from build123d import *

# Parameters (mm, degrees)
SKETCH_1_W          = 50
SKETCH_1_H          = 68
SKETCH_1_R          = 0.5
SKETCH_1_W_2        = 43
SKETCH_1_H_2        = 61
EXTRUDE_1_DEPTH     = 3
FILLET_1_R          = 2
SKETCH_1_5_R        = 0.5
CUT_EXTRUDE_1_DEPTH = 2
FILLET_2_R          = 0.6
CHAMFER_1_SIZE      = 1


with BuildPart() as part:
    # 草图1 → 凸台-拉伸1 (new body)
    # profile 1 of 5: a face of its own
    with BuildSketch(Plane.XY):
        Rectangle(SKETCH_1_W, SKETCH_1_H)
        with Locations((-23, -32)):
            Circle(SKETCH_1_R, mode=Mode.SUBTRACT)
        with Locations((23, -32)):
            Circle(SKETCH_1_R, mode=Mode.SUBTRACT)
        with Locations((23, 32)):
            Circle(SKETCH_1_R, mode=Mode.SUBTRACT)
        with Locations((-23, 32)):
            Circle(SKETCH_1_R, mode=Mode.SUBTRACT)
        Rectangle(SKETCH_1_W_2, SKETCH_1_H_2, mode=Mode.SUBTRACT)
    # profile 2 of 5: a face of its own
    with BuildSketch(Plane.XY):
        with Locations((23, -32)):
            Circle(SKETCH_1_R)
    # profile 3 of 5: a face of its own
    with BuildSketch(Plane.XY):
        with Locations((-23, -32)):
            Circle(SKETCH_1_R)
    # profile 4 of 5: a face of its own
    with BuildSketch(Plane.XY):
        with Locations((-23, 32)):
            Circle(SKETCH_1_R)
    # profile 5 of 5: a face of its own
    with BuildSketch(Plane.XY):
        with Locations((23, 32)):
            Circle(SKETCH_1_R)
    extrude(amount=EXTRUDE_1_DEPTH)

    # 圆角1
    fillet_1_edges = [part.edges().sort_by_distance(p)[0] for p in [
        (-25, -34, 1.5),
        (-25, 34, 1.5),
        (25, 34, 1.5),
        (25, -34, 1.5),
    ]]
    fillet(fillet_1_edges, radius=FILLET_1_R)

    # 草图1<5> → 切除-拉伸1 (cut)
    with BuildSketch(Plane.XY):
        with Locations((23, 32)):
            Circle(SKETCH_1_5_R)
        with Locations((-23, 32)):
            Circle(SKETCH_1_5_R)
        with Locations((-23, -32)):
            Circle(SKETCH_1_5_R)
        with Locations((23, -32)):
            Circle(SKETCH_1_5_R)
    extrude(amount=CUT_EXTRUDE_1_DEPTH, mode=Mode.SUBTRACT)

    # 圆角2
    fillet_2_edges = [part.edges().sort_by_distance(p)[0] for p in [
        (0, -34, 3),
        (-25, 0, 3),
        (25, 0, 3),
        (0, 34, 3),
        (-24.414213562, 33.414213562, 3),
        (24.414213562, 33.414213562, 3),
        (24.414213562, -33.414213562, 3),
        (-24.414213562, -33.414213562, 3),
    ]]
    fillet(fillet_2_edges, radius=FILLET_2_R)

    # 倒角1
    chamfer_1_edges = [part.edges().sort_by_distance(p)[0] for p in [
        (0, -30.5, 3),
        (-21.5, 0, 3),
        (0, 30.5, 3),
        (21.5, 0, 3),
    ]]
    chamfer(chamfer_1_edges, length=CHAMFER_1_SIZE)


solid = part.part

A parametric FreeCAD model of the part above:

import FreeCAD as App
import Part
import Sketcher
from FreeCAD import Vector
Q = App.Units.Quantity


def edges_at(feature, points):
    """Names of the edges that pass closest to the given points."""
    edges = feature.Shape.Edges
    near = lambda p: min(range(len(edges)), key=lambda i: edges[i].distToShape(Part.Vertex(*p))[0])
    return sorted({f"Edge{near(p) + 1}" for p in points})


def add_polygon(sketch, points):
    """Adds a closed chain of lines whose ends are joined by coincident constraints."""
    first, n = sketch.GeometryCount, len(points)
    for a, b in zip(points, points[1:] + points[:1]):
        sketch.addGeometry(Part.LineSegment(App.Vector(*a, 0), App.Vector(*b, 0)), False)
    for i in range(n):
        sketch.addConstraint(Sketcher.Constraint("Coincident", first + i, 2, first + (i + 1) % n, 1))

doc = App.newDocument("Part")
body = doc.addObject("PartDesign::Body", "Body")

# Sketch on XY plane
sketch1 = body.newObject("Sketcher::SketchObject", "Sketch")
sketch1.AttachmentSupport = (doc.getObject("XY_Plane"), [""])
sketch1.MapMode = "FlatFace"
add_polygon(sketch1, [(-25, 34), (-25, -34), (25, -34), (25, 34)])  # lines 0-3
add_polygon(sketch1, [(22, -30), (-22, -30), (-22, 30), (22, 30)])  # lines 4-7
sketch1.addConstraint(Sketcher.Constraint("Vertical", 0))
sketch1.addConstraint(Sketcher.Constraint("Horizontal", 1))
sketch1.addConstraint(Sketcher.Constraint("Vertical", 2))
sketch1.addConstraint(Sketcher.Constraint("Horizontal", 3))
sketch1.addConstraint(Sketcher.Constraint("Horizontal", 4))
sketch1.addConstraint(Sketcher.Constraint("Vertical", 5))
sketch1.addConstraint(Sketcher.Constraint("Horizontal", 6))
sketch1.addConstraint(Sketcher.Constraint("Vertical", 7))
sketch1.addConstraint(Sketcher.Constraint("Symmetric", 0, 2, 2, 2, -1, 1))
sketch1.addConstraint(Sketcher.Constraint("Symmetric", 4, 2, 6, 2, -1, 1))
sketch1.addConstraint(Sketcher.Constraint("DistanceX", 1, 1, 1, 2, Q("50 mm")))
sketch1.addConstraint(Sketcher.Constraint("DistanceX", 4, 2, 4, 1, Q("43 mm")))
sketch1.addConstraint(Sketcher.Constraint("DistanceY", 0, 2, 0, 1, Q("68 mm")))
sketch1.addConstraint(Sketcher.Constraint("DistanceY", 5, 1, 5, 2, Q("61 mm")))
pad1 = body.newObject("PartDesign::Pad", "Pad")
pad1.Profile = sketch1
pad1.Length = 3
doc.recompute()

fillet = body.newObject("PartDesign::Fillet", "Fillet")
fillet.Base = (pad1, edges_at(pad1, [
    (-25, -34, 1.5),
    (-25, 34, 1.5),
    (25, 34, 1.5),
    (25, -34, 1.5),
]))
fillet.Radius = 2

# Sketch on XY plane
sketch2 = body.newObject("Sketcher::SketchObject", "Sketch001")
sketch2.AttachmentSupport = (doc.getObject("XY_Plane"), [""])
sketch2.MapMode = "FlatFace"
sketch2.addGeometry(Part.Circle(Vector(23, 32, 0), Vector(0, 0, 1), 0.5), False)
sketch2.addGeometry(Part.Circle(Vector(-23, 32, 0), Vector(0, 0, 1), 0.5), False)
sketch2.addGeometry(Part.Circle(Vector(-23, -32, 0), Vector(0, 0, 1), 0.5), False)
sketch2.addGeometry(Part.Circle(Vector(23, -32, 0), Vector(0, 0, 1), 0.5), False)
sketch2.addConstraint(Sketcher.Constraint("Equal", 0, 1))
sketch2.addConstraint(Sketcher.Constraint("Equal", 1, 2))
sketch2.addConstraint(Sketcher.Constraint("Equal", 2, 3))
sketch2.addConstraint(Sketcher.Constraint("Symmetric", 0, 3, 2, 3, -1, 1))
sketch2.addConstraint(Sketcher.Constraint("Symmetric", 1, 3, 3, 3, -1, 1))
sketch2.addConstraint(Sketcher.Constraint("Symmetric", 0, 3, 1, 3, -2))
sketch2.addConstraint(Sketcher.Constraint("Diameter", 0, Q("1 mm")))
sketch2.addConstraint(Sketcher.Constraint("DistanceX", -1, 1, 0, 3, Q("23 mm")))
sketch2.addConstraint(Sketcher.Constraint("DistanceY", -1, 1, 0, 3, Q("32 mm")))
pocket1 = body.newObject("PartDesign::Pocket", "Pocket")
pocket1.Profile = sketch2
pocket1.Length = 2
pocket1.Reversed = True
doc.recompute()

fillet2 = body.newObject("PartDesign::Fillet", "Fillet001")
fillet2.Base = (pocket1, edges_at(pocket1, [
    (0, -34, 3),
    (-25, 0, 3),
    (25, 0, 3),
    (0, 34, 3),
    (-24.414, 33.414, 3),
    (24.414, 33.414, 3),
    (24.414, -33.414, 3),
    (-24.414, -33.414, 3),
]))
fillet2.Radius = 0.6
doc.recompute()

chamfer = body.newObject("PartDesign::Chamfer", "Chamfer")
chamfer.Base = (fillet2, edges_at(fillet2, [
    (0, -30.5, 3),
    (-21.5, 0, 3),
    (0, 30.5, 3),
    (21.5, 0, 3),
]))
chamfer.Size = 1

doc.recompute()
